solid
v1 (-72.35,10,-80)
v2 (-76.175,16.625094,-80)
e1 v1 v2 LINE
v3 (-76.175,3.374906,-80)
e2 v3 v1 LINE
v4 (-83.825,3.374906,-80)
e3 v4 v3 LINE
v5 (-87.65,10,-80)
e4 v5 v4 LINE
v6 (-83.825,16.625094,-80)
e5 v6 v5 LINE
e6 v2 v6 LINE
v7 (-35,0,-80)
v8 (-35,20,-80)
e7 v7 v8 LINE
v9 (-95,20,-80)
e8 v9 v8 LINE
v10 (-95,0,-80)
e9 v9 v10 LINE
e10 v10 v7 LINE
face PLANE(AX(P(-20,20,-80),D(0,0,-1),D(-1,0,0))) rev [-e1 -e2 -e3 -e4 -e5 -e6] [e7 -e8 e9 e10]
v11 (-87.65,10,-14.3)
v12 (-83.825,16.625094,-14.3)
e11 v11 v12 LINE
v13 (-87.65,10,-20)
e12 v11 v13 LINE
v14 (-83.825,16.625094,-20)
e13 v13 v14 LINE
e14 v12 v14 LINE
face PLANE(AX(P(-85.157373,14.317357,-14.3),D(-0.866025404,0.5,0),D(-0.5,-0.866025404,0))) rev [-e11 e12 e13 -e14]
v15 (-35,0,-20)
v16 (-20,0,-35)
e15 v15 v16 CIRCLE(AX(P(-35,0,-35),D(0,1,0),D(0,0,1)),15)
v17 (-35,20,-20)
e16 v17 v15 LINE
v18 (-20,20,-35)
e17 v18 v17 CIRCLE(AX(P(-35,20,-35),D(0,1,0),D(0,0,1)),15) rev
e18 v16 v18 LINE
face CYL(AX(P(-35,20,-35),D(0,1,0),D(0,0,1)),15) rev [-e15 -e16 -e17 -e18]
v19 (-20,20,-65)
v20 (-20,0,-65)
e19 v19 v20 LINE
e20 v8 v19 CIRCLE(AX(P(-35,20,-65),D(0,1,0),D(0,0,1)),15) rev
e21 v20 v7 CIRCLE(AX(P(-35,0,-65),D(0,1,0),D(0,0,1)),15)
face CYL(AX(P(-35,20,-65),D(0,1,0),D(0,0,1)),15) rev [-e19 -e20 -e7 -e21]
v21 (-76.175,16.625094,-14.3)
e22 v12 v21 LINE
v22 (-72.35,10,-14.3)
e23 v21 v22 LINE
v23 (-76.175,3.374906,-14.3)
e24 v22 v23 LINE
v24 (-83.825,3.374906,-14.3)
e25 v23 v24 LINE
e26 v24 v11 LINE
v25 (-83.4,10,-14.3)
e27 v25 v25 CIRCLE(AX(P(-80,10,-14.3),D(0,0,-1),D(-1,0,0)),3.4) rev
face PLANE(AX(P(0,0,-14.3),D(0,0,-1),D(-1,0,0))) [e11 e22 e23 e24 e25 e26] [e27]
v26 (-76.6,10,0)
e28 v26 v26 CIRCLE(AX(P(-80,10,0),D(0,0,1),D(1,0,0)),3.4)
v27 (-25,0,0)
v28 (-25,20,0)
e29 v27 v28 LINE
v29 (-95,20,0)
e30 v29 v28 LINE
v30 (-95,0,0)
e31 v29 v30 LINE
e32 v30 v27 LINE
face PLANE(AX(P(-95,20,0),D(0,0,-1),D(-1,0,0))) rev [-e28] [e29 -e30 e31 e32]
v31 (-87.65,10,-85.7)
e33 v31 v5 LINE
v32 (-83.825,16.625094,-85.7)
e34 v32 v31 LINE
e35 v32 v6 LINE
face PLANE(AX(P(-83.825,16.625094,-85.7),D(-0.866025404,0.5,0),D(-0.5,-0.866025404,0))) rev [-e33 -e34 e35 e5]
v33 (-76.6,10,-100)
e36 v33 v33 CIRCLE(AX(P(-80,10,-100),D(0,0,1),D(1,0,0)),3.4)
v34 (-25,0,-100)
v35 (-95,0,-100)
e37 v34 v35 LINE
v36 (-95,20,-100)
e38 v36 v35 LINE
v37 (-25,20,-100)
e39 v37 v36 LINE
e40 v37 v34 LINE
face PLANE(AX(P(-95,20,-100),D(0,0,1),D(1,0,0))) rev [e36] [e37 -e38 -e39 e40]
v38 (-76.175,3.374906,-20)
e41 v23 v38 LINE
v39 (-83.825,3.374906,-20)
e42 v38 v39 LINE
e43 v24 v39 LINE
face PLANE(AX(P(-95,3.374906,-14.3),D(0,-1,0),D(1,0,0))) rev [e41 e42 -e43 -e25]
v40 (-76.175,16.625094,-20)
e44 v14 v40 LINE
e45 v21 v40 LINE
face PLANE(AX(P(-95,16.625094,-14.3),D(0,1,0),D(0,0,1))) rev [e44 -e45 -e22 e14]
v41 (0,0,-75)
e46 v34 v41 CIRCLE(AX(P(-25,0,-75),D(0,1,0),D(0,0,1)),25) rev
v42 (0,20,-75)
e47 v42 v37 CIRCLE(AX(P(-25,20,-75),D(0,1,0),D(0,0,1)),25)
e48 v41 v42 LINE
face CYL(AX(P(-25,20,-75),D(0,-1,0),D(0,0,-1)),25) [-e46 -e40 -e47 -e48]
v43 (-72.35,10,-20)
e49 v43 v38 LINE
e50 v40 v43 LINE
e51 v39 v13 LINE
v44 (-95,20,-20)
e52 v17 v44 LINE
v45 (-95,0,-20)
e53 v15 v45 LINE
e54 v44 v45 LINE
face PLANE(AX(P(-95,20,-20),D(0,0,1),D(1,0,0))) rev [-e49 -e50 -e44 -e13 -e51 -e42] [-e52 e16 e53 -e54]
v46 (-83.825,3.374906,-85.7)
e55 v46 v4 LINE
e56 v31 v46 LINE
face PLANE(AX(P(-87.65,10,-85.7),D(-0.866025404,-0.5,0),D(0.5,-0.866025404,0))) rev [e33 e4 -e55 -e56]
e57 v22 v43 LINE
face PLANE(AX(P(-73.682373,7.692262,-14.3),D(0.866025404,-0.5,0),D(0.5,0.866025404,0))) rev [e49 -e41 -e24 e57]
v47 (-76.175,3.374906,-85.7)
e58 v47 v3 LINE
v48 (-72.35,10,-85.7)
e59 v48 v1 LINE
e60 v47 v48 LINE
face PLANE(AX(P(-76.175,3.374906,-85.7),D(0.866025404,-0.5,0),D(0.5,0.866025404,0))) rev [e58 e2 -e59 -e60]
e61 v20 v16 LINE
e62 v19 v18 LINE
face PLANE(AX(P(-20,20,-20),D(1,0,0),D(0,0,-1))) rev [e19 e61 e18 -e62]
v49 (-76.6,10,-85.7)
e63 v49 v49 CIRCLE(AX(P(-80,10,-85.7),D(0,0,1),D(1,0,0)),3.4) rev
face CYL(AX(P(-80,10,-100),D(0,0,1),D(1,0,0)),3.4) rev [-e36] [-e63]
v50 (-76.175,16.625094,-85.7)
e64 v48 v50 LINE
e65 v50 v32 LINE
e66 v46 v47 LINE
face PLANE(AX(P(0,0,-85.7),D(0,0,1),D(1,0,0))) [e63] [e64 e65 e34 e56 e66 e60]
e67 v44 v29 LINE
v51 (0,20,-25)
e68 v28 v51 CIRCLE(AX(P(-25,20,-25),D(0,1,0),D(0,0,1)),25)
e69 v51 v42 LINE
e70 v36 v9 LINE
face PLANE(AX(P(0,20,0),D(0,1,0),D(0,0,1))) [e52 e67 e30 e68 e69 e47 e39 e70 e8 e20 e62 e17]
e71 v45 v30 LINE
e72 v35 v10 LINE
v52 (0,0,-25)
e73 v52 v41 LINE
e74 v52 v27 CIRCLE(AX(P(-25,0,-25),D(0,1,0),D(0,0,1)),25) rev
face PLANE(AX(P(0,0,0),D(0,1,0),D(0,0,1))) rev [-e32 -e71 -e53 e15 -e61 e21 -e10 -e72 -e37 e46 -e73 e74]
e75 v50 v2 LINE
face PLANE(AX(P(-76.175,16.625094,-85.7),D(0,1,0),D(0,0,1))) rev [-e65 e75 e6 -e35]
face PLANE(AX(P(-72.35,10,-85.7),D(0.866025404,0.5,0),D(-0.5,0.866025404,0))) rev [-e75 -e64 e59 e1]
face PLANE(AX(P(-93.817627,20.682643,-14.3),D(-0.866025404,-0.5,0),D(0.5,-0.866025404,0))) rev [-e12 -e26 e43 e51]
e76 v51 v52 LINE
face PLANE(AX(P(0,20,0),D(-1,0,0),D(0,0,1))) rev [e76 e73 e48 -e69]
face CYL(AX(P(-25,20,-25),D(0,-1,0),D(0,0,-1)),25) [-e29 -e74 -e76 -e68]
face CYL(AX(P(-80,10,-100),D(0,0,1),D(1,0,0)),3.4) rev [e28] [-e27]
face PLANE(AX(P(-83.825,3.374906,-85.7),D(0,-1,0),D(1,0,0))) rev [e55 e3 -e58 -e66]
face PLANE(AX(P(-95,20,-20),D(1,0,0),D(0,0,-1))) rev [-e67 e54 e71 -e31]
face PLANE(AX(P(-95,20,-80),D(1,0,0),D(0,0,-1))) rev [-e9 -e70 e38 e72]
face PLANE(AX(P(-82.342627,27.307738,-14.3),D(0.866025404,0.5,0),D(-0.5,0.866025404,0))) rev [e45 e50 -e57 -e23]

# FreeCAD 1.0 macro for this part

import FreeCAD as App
import Part
import Sketcher
from FreeCAD import Vector
Q = App.Units.Quantity


def edges_at(feature, points):
    """Names of the edges that pass closest to the given points."""
    edges = feature.Shape.Edges
    near = lambda p: min(range(len(edges)), key=lambda i: edges[i].distToShape(Part.Vertex(*p))[0])
    return sorted({f"Edge{near(p) + 1}" for p in points})

doc = App.newDocument("Part")
body = doc.addObject("PartDesign::Body", "Body")

# Sketch on XZ plane
sketch1 = doc.addObject("Sketcher::SketchObject", "Sketch")
body.addObject(sketch1)
sketch1.AttachmentSupport = (doc.XZ_Plane, [""])
sketch1.MapMode = "FlatFace"
sketch1.addGeometry([
    Part.LineSegment(Vector(-95, -20, 0), Vector(-95, 0, 0)),  # 0
    Part.LineSegment(Vector(-95, 0, 0), Vector(0, 0, 0)),  # 1
    Part.LineSegment(Vector(0, 0, 0), Vector(0, -100, 0)),  # 2
    Part.LineSegment(Vector(0, -100, 0), Vector(-95, -100, 0)),  # 3
    Part.LineSegment(Vector(-95, -100, 0), Vector(-95, -80, 0)),  # 4
    Part.LineSegment(Vector(-95, -80, 0), Vector(-20, -80, 0)),  # 5
    Part.LineSegment(Vector(-20, -80, 0), Vector(-20, -20, 0)),  # 6
    Part.LineSegment(Vector(-20, -20, 0), Vector(-95, -20, 0)),  # 7
], False)
sketch1.addConstraint([
    Sketcher.Constraint("Coincident", 0, 2, 1, 1),
    Sketcher.Constraint("Coincident", 1, 2, 2, 1),
    Sketcher.Constraint("Coincident", 2, 2, 3, 1),
    Sketcher.Constraint("Coincident", 3, 2, 4, 1),
    Sketcher.Constraint("Coincident", 4, 2, 5, 1),
    Sketcher.Constraint("Coincident", 5, 2, 6, 1),
    Sketcher.Constraint("Coincident", 6, 2, 7, 1),
    Sketcher.Constraint("Coincident", 7, 2, 0, 1),
    Sketcher.Constraint("Vertical", 0),
    Sketcher.Constraint("Horizontal", 1),
    Sketcher.Constraint("Vertical", 2),
    Sketcher.Constraint("Horizontal", 3),
    Sketcher.Constraint("Vertical", 4),
    Sketcher.Constraint("Horizontal", 5),
    Sketcher.Constraint("Vertical", 6),
    Sketcher.Constraint("Horizontal", 7),
    Sketcher.Constraint("Coincident", 1, 2, -1, 1),
    Sketcher.Constraint("Vertical", 0, 2, 3, 2),
    Sketcher.Constraint("Equal", 0, 4),
    Sketcher.Constraint("DistanceX", 1, 1, 1, 2, 95.0),
    Sketcher.Constraint("DistanceX", 5, 1, 5, 2, 75.0),
    Sketcher.Constraint("DistanceY", 0, 1, 0, 2, 20.0),
    Sketcher.Constraint("DistanceY", 2, 2, 2, 1, 100.0),
])
pad1 = doc.addObject("PartDesign::Pad", "Pad")
body.addObject(pad1)
pad1.Profile = sketch1
pad1.Length = 20
pad1.Reversed = True

# Sketch on XY plane
sketch2 = doc.addObject("Sketcher::SketchObject", "Sketch001")
body.addObject(sketch2)
sketch2.AttachmentSupport = (doc.XY_Plane, [""])
sketch2.MapMode = "FlatFace"
sketch2.AttachmentOffset = App.Placement(Vector(0, 0, -80), App.Rotation())
sketch2.addGeometry(Part.Circle(Vector(-80, 10, 0), Vector(0, 0, 1), 3.4), False)
sketch2.addConstraint([
    Sketcher.Constraint("Diameter", 0, 6.8),
    Sketcher.Constraint("DistanceX", 0, 3, -1, 1, 80.0),
    Sketcher.Constraint("DistanceY", -1, 1, 0, 3, 10.0),
])
pocket1 = doc.addObject("PartDesign::Pocket", "Pocket")
body.addObject(pocket1)
pocket1.Profile = sketch2
pocket1.Type = "ThroughAll"
pocket1.Midplane = True

# Sketch on XY plane
sketch3 = doc.addObject("Sketcher::SketchObject", "Sketch002")
body.addObject(sketch3)
sketch3.AttachmentSupport = (doc.XY_Plane, [""])
sketch3.MapMode = "FlatFace"
sketch3.AttachmentOffset = App.Placement(Vector(0, 0, -80), App.Rotation())
sketch3.addGeometry([
    Part.LineSegment(Vector(-76, 3, 0), Vector(-72, 10, 0)),  # 0
    Part.LineSegment(Vector(-72, 10, 0), Vector(-76, 17, 0)),  # 1
    Part.LineSegment(Vector(-76, 17, 0), Vector(-84, 17, 0)),  # 2
    Part.LineSegment(Vector(-84, 17, 0), Vector(-88, 10, 0)),  # 3
    Part.LineSegment(Vector(-88, 10, 0), Vector(-84, 3, 0)),  # 4
    Part.LineSegment(Vector(-84, 3, 0), Vector(-76, 3, 0)),  # 5
], False)
sketch3.addConstraint([
    Sketcher.Constraint("Coincident", 0, 2, 1, 1),
    Sketcher.Constraint("Coincident", 1, 2, 2, 1),
    Sketcher.Constraint("Coincident", 2, 2, 3, 1),
    Sketcher.Constraint("Coincident", 3, 2, 4, 1),
    Sketcher.Constraint("Coincident", 4, 2, 5, 1),
    Sketcher.Constraint("Coincident", 5, 2, 0, 1),
    Sketcher.Constraint("Horizontal", 2),
    Sketcher.Constraint("Horizontal", 5),
    Sketcher.Constraint("Parallel", 0, 3),
    Sketcher.Constraint("Parallel", 1, 4),
    Sketcher.Constraint("Horizontal", 0, 2, 3, 2),
    Sketcher.Constraint("Vertical", 2, 2, 4, 2),
    Sketcher.Constraint("Vertical", 1, 2, 5, 2),
    Sketcher.Constraint("Angle", 0, Q("60 deg")),
    Sketcher.Constraint("DistanceY", -1, 1, 0, 2, 10.0),
    Sketcher.Constraint("DistanceX", 2, 2, 2, 1, 7.65),
    Sketcher.Constraint("DistanceX", 3, 2, 0, 2, 15.3),
    Sketcher.Constraint("DistanceX", 0, 2, -1, 1, 72.35),
])
pocket2 = doc.addObject("PartDesign::Pocket", "Pocket001")
body.addObject(pocket2)
pocket2.Profile = sketch3
pocket2.Length = 5.7

# Sketch on XY plane
sketch4 = doc.addObject("Sketcher::SketchObject", "Sketch003")
body.addObject(sketch4)
sketch4.AttachmentSupport = (doc.XY_Plane, [""])
sketch4.MapMode = "FlatFace"
sketch4.AttachmentOffset = App.Placement(Vector(0, 0, -20), App.Rotation())
sketch4.addGeometry([
    Part.LineSegment(Vector(-76, 3, 0), Vector(-72, 10, 0)),  # 0
    Part.LineSegment(Vector(-72, 10, 0), Vector(-76, 17, 0)),  # 1
    Part.LineSegment(Vector(-76, 17, 0), Vector(-84, 17, 0)),  # 2
    Part.LineSegment(Vector(-84, 17, 0), Vector(-88, 10, 0)),  # 3
    Part.LineSegment(Vector(-88, 10, 0), Vector(-84, 3, 0)),  # 4
    Part.LineSegment(Vector(-84, 3, 0), Vector(-76, 3, 0)),  # 5
], False)
sketch4.addConstraint([
    Sketcher.Constraint("Coincident", 0, 2, 1, 1),
    Sketcher.Constraint("Coincident", 1, 2, 2, 1),
    Sketcher.Constraint("Coincident", 2, 2, 3, 1),
    Sketcher.Constraint("Coincident", 3, 2, 4, 1),
    Sketcher.Constraint("Coincident", 4, 2, 5, 1),
    Sketcher.Constraint("Coincident", 5, 2, 0, 1),
    Sketcher.Constraint("Horizontal", 2),
    Sketcher.Constraint("Horizontal", 5),
    Sketcher.Constraint("Parallel", 0, 3),
    Sketcher.Constraint("Parallel", 1, 4),
    Sketcher.Constraint("Horizontal", 0, 2, 3, 2),
    Sketcher.Constraint("Vertical", 2, 2, 4, 2),
    Sketcher.Constraint("Vertical", 1, 2, 5, 2),
    Sketcher.Constraint("Angle", 0, Q("60 deg")),
    Sketcher.Constraint("DistanceY", -1, 1, 0, 2, 10.0),
    Sketcher.Constraint("DistanceX", 2, 2, 2, 1, 7.65),
    Sketcher.Constraint("DistanceX", 3, 2, 0, 2, 15.3),
    Sketcher.Constraint("DistanceX", 0, 2, -1, 1, 72.35),
])
pocket3 = doc.addObject("PartDesign::Pocket", "Pocket002")
body.addObject(pocket3)
pocket3.Profile = sketch4
pocket3.Length = 5.7
pocket3.Reversed = True
doc.recompute()

fillet = doc.addObject("PartDesign::Fillet", "Fillet")
body.addObject(fillet)
fillet.Base = (pocket3, edges_at(pocket3, [(-20, 10, -20), (-20, 10, -80)]))
fillet.Radius = 15
doc.recompute()

fillet2 = doc.addObject("PartDesign::Fillet", "Fillet001")
body.addObject(fillet2)
fillet2.Base = (fillet, edges_at(fillet, [(0, 10, -100), (0, 10, 0)]))
fillet2.Radius = 25

doc.recompute()
